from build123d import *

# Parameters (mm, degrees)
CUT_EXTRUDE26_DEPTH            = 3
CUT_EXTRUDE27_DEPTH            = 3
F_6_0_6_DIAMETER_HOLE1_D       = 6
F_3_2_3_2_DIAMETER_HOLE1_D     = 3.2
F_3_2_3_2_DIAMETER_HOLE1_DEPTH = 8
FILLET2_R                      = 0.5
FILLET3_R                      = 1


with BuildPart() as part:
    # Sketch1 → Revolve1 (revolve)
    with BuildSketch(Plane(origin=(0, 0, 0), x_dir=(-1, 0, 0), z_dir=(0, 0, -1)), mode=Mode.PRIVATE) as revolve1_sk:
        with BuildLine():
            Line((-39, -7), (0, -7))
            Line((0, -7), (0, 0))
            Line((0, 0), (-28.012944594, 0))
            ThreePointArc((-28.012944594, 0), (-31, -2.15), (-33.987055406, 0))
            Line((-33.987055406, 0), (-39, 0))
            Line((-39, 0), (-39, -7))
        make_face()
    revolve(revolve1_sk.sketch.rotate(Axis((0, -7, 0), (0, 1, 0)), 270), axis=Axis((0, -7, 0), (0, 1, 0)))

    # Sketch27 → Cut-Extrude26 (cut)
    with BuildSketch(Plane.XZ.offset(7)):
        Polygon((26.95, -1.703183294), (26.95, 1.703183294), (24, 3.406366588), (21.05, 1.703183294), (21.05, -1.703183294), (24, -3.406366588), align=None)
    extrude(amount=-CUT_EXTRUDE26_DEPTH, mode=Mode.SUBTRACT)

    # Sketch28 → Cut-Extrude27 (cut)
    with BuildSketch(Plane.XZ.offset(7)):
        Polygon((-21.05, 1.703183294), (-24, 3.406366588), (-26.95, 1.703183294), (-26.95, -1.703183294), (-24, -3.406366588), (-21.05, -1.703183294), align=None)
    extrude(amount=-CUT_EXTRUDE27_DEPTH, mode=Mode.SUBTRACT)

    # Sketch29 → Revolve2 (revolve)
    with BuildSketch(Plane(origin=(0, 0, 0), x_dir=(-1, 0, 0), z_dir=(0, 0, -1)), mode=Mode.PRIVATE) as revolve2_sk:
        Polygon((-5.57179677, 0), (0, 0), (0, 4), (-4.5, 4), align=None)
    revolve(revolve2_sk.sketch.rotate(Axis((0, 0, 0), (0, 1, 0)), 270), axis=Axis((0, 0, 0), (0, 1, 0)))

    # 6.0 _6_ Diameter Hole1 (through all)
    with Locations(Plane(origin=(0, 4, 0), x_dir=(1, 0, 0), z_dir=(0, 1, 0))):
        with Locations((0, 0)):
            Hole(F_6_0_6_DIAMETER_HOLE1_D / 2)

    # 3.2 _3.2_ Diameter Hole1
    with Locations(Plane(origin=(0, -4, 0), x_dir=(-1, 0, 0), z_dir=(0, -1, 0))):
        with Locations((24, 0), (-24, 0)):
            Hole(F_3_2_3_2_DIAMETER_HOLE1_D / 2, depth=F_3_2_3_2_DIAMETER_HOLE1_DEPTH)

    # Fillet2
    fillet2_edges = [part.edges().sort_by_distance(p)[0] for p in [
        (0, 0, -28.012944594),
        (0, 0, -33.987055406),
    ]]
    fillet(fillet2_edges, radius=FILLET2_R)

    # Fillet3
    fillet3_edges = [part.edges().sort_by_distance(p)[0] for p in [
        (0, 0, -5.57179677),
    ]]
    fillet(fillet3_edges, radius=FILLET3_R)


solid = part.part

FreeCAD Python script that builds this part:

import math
import FreeCAD as App
import Part
import Sketcher
Q = App.Units.Quantity


def edges_at(feature, points):
    """Names of the edges that pass closest to the given points."""
    edges = feature.Shape.Edges
    near = lambda p: min(range(len(edges)), key=lambda i: edges[i].distToShape(Part.Vertex(*p))[0])
    return sorted({f"Edge{near(p) + 1}" for p in points})


def add_polygon(sketch, points):
    """Adds a closed chain of lines whose ends are joined by coincident constraints."""
    first, n = sketch.GeometryCount, len(points)
    for a, b in zip(points, points[1:] + points[:1]):
        sketch.addGeometry(Part.LineSegment(App.Vector(*a, 0), App.Vector(*b, 0)), False)
    for i in range(n):
        sketch.addConstraint(Sketcher.Constraint("Coincident", first + i, 2, first + (i + 1) % n, 1))

doc = App.newDocument("Part")
body = doc.addObject("PartDesign::Body", "Body")

sketch1 = body.newObject("Sketcher::SketchObject", "Sketch")
sketch1.AttachmentSupport = (doc.getObject("XY_Plane"), [""])
sketch1.MapMode = "FlatFace"
sketch1.addGeometry([
    Part.LineSegment(App.Vector(39, -7, 0), App.Vector(0, -7, 0)),
    Part.LineSegment(App.Vector(0, -7, 0), App.Vector(0, 0, 0)),
    Part.LineSegment(App.Vector(0, 0, 0), App.Vector(28.012945, 0, 0)),
    Part.ArcOfCircle(Part.Circle(App.Vector(31, 1, 0), App.Vector(0, 0, 1), 3.15), math.radians(-161.490595), math.radians(-18.509405)),
    Part.LineSegment(App.Vector(33.987055, 0, 0), App.Vector(39, 0, 0)),
    Part.LineSegment(App.Vector(39, 0, 0), App.Vector(39, -7, 0)),
], False)
sketch1.addConstraint([
    Sketcher.Constraint("Coincident", 0, 2, 1, 1),
    Sketcher.Constraint("Coincident", 1, 2, 2, 1),
    Sketcher.Constraint("Coincident", 2, 2, 3, 1),
    Sketcher.Constraint("Coincident", 3, 2, 4, 1),
    Sketcher.Constraint("Coincident", 4, 2, 5, 1),
    Sketcher.Constraint("Coincident", 5, 2, 0, 1),
    Sketcher.Constraint("Horizontal", 0),
    Sketcher.Constraint("Vertical", 1),
    Sketcher.Constraint("Horizontal", 2),
    Sketcher.Constraint("Horizontal", 4),
    Sketcher.Constraint("Vertical", 5),
    Sketcher.Constraint("Coincident", 1, 2, -1, 1),
    Sketcher.Constraint("PointOnObject", 3, 2, -1),
    Sketcher.Constraint("DistanceX", 0, 2, 0, 1, Q("39 mm")),
    Sketcher.Constraint("DistanceY", 1, 1, 1, 2, Q("7 mm")),
    Sketcher.Constraint("Radius", 3, Q("3.15 mm")),
    Sketcher.Constraint("DistanceX", -1, 1, 3, 3, Q("31 mm")),
    Sketcher.Constraint("DistanceY", -1, 1, 3, 3, Q("1 mm")),
])
revolution = body.newObject("PartDesign::Revolution", "Revolution")
revolution.Profile = sketch1
revolution.ReferenceAxis = (sketch1, ["V_Axis"])
revolution.Angle = 360

sketch2 = body.newObject("Sketcher::SketchObject", "Sketch001")
sketch2.AttachmentSupport = (doc.getObject("XZ_Plane"), [""])
sketch2.MapMode = "FlatFace"
sketch2.AttachmentOffset = App.Placement(App.Vector(0, 0, 7), App.Rotation())
add_polygon(sketch2, [(26.95, -1.703183), (26.95, 1.703183), (24, 3.406367), (21.05, 1.703183), (21.05, -1.703183), (24, -3.406367)])
sketch2.addConstraint([
    Sketcher.Constraint("Vertical", 0),
    Sketcher.Constraint("Vertical", 3),
    Sketcher.Constraint("Symmetric", 1, 2, 4, 2, -1),
    Sketcher.Constraint("Parallel", 1, 4),
    Sketcher.Constraint("Parallel", 2, 5),
    Sketcher.Constraint("Horizontal", 0, 2, 2, 2),
    Sketcher.Constraint("Horizontal", 3, 2, 5, 2),
    Sketcher.Constraint("Angle", 1, Q("150 deg")),
    Sketcher.Constraint("DistanceX", -1, 1, 1, 2, Q("24 mm")),
    Sketcher.Constraint("DistanceX", 2, 2, 0, 2, Q("5.9 mm")),
    Sketcher.Constraint("DistanceY", 0, 1, 0, 2, Q("3.406367 mm")),
])
pocket1 = body.newObject("PartDesign::Pocket", "Pocket")
pocket1.Profile = sketch2
pocket1.Length = 3

sketch3 = body.newObject("Sketcher::SketchObject", "Sketch002")
sketch3.AttachmentSupport = (doc.getObject("XZ_Plane"), [""])
sketch3.MapMode = "FlatFace"
sketch3.AttachmentOffset = App.Placement(App.Vector(0, 0, 7), App.Rotation())
add_polygon(sketch3, [(-21.05, 1.703183), (-24, 3.406367), (-26.95, 1.703183), (-26.95, -1.703183), (-24, -3.406367), (-21.05, -1.703183)])
sketch3.addConstraint([
    Sketcher.Constraint("Vertical", 2),
    Sketcher.Constraint("Vertical", 5),
    Sketcher.Constraint("Symmetric", 0, 2, 3, 2, -1),
    Sketcher.Constraint("Parallel", 0, 3),
    Sketcher.Constraint("Parallel", 1, 4),
    Sketcher.Constraint("Horizontal", 2, 2, 4, 2),
    Sketcher.Constraint("Horizontal", 1, 2, 5, 2),
    Sketcher.Constraint("Angle", 0, Q("150 deg")),
    Sketcher.Constraint("DistanceX", 0, 2, -1, 1, Q("24 mm")),
    Sketcher.Constraint("DistanceX", 2, 2, 4, 2, Q("5.9 mm")),
    Sketcher.Constraint("DistanceY", 2, 2, 2, 1, Q("3.406367 mm")),
])
pocket2 = body.newObject("PartDesign::Pocket", "Pocket001")
pocket2.Profile = sketch3
pocket2.Length = 3

sketch4 = body.newObject("Sketcher::SketchObject", "Sketch003")
sketch4.AttachmentSupport = (doc.getObject("XY_Plane"), [""])
sketch4.MapMode = "FlatFace"
add_polygon(sketch4, [(5.571797, 0), (0, 0), (0, 4), (4.5, 4)])
sketch4.addConstraint([
    Sketcher.Constraint("Horizontal", 0),
    Sketcher.Constraint("Vertical", 1),
    Sketcher.Constraint("Horizontal", 2),
    Sketcher.Constraint("Coincident", 0, 2, -1, 1),
    Sketcher.Constraint("DistanceY", 1, 1, 1, 2, Q("4 mm")),
    Sketcher.Constraint("Angle", 3, Q("-75 deg")),
    Sketcher.Constraint("DistanceX", 2, 1, 2, 2, Q("4.5 mm")),
])
revolution2 = body.newObject("PartDesign::Revolution", "Revolution001")
revolution2.Profile = sketch4
revolution2.ReferenceAxis = (sketch4, ["V_Axis"])
revolution2.Angle = 360

sketch5 = body.newObject("Sketcher::SketchObject", "Sketch004")
sketch5.AttachmentSupport = (doc.getObject("XZ_Plane"), [""])
sketch5.MapMode = "FlatFace"
sketch5.AttachmentOffset = App.Placement(App.Vector(0, 0, -4), App.Rotation())
sketch5.addGeometry(Part.Circle(App.Vector(0, 0, 0), App.Vector(0, 0, 1), 3), False)
sketch5.addConstraint([
    Sketcher.Constraint("Coincident", 0, 3, -1, 1),
    Sketcher.Constraint("Diameter", 0, Q("6 mm")),
])
doc.recompute()
hole = body.newObject("PartDesign::Hole", "Hole")
hole.Profile = sketch5
hole.ThreadType = "None"
hole.Diameter = 6
hole.DepthType = "ThroughAll"
hole.Reversed = True

sketch6 = body.newObject("Sketcher::SketchObject", "Sketch005")
sketch6.AttachmentSupport = (doc.getObject("XZ_Plane"), [""])
sketch6.MapMode = "FlatFace"
sketch6.AttachmentOffset = App.Placement(App.Vector(0, 0, 4), App.Rotation())
sketch6.addGeometry([
    Part.Circle(App.Vector(-24, 0, 0), App.Vector(0, 0, 1), 1.6),
    Part.Circle(App.Vector(24, 0, 0), App.Vector(0, 0, 1), 1.6),
], False)
sketch6.addConstraint([
    Sketcher.Constraint("Equal", 0, 1),
    Sketcher.Constraint("Symmetric", 0, 3, 1, 3, -1, 1),
    Sketcher.Constraint("PointOnObject", 0, 3, -1),
    Sketcher.Constraint("Diameter", 0, Q("3.2 mm")),
    Sketcher.Constraint("DistanceX", 0, 3, -1, 1, Q("24 mm")),
])
doc.recompute()
hole2 = body.newObject("PartDesign::Hole", "Hole001")
hole2.Profile = sketch6
hole2.ThreadType = "None"
hole2.Diameter = 3.2
hole2.DepthType = "Dimension"
hole2.Depth = 8
hole2.DrillPoint = "Flat"
doc.recompute()

fillet = body.newObject("PartDesign::Fillet", "Fillet")
fillet.Base = (hole2, edges_at(hole2, [(0, 0, -28.013), (0, 0, -33.987)]))
fillet.Radius = 0.5
doc.recompute()

fillet2 = body.newObject("PartDesign::Fillet", "Fillet001")
fillet2.Base = (fillet, edges_at(fillet, [(0, 0, -5.572)]))
fillet2.Radius = 1

doc.recompute()
